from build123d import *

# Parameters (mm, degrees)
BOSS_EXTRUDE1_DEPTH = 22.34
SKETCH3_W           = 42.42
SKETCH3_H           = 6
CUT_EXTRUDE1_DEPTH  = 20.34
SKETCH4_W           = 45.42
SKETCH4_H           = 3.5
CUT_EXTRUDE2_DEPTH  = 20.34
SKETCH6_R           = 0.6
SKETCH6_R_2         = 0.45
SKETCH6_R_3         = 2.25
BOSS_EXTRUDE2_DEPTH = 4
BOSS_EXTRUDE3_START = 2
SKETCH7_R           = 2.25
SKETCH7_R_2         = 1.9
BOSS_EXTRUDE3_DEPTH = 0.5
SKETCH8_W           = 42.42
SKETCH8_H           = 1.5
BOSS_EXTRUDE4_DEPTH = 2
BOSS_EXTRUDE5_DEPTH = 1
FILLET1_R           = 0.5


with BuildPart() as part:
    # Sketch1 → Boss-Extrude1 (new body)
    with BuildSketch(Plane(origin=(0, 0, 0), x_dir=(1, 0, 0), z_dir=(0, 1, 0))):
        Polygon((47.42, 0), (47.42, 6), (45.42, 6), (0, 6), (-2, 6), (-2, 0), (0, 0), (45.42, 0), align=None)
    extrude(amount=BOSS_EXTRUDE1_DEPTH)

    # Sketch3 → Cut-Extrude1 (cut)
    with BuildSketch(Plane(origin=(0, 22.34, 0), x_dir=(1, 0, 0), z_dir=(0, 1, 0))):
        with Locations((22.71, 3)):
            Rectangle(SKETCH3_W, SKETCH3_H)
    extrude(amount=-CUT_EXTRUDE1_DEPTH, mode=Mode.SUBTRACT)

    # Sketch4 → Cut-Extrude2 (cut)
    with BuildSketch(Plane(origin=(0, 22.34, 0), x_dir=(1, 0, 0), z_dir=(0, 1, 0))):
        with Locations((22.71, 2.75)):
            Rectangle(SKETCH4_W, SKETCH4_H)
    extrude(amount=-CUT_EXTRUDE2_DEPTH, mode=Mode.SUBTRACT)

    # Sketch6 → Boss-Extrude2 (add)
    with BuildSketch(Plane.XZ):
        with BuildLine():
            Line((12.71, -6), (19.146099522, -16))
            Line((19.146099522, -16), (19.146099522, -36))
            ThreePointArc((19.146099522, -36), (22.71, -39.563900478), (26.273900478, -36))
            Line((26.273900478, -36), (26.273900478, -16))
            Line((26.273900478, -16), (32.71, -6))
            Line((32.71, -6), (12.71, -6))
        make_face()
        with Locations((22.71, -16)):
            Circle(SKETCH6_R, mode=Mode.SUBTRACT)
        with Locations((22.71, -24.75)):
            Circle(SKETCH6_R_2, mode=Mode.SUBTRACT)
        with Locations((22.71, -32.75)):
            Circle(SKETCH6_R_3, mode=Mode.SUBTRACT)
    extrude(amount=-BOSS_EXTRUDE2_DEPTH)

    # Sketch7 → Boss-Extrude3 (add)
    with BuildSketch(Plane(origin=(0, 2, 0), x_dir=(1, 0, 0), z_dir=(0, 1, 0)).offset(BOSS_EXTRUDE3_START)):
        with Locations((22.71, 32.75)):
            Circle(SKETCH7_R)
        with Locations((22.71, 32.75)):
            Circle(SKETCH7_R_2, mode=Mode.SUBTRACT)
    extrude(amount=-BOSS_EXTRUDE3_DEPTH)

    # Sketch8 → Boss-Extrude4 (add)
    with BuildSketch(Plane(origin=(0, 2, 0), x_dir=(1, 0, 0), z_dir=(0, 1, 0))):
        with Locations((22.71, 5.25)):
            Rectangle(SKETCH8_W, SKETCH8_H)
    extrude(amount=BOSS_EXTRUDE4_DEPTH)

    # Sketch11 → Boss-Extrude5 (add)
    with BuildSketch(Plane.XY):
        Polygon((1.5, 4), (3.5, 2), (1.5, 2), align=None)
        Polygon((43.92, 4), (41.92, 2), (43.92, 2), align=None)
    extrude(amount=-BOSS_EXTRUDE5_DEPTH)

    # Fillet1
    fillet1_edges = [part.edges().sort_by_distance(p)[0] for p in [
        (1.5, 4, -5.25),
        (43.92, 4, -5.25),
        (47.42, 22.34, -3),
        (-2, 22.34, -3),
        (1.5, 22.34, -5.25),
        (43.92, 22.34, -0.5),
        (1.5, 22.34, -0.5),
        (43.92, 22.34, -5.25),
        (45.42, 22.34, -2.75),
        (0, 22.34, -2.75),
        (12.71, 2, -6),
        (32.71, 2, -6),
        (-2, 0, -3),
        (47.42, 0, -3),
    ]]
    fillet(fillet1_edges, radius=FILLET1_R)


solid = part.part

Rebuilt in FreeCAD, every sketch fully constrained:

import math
import FreeCAD as App
import Part
import Sketcher
Q = App.Units.Quantity


def edges_at(feature, points):
    """Names of the edges that pass closest to the given points."""
    edges = feature.Shape.Edges
    near = lambda p: min(range(len(edges)), key=lambda i: edges[i].distToShape(Part.Vertex(*p))[0])
    return sorted({f"Edge{near(p) + 1}" for p in points})


def add_polygon(sketch, points):
    """Adds a closed chain of lines whose ends are joined by coincident constraints."""
    first, n = sketch.GeometryCount, len(points)
    for a, b in zip(points, points[1:] + points[:1]):
        sketch.addGeometry(Part.LineSegment(App.Vector(*a, 0), App.Vector(*b, 0)), False)
    for i in range(n):
        sketch.addConstraint(Sketcher.Constraint("Coincident", first + i, 2, first + (i + 1) % n, 1))

doc = App.newDocument("Part")
params = doc.addObject("Spreadsheet::Sheet", "Params")
for row, (alias, value) in enumerate([
    ("sketch1_height", "6 mm"),
    ("sketch1_width", "49.42 mm"),
    ("pad1_length", "22.34 mm"),
    ("sketch2_height", "6 mm"),
    ("sketch2_width", "42.42 mm"),
    ("pocket1_length", "20.34 mm"),
    ("sketch3_height", "3.5 mm"),
    ("sketch3_width", "45.42 mm"),
    ("pocket2_length", "20.34 mm"),
    ("sketch4_diameter", "4.5 mm"),
    ("sketch4_diameter2", "0.9 mm"),
    ("sketch4_diameter3", "1.2 mm"),
    ("sketch4_width", "20 mm"),
    ("pad2_length", "4 mm"),
    ("sketch5_diameter", "4.5 mm"),
    ("sketch5_diameter2", "3.8 mm"),
    ("pad3_length", "0.5 mm"),
    ("sketch6_height", "1.5 mm"),
    ("sketch6_width", "42.42 mm"),
    ("pad4_length", "2 mm"),
    ("sketch7_width", "2 mm"),
    ("pad5_length", "1 mm"),
    ("fillet_radius", "0.5 mm"),
], start=1):
    params.set(f"A{row}", alias)
    params.set(f"B{row}", "=" + value)
    params.setAlias(f"B{row}", alias)

body = doc.addObject("PartDesign::Body", "Body")

sketch1 = body.newObject("Sketcher::SketchObject", "Sketch")
sketch1.AttachmentSupport = (doc.getObject("XZ_Plane"), [""])
sketch1.MapMode = "FlatFace"
add_polygon(sketch1, [(47, 0), (47, -6), (-2, -6), (-2, 0)])
sketch1.addConstraint(Sketcher.Constraint("Vertical", 0))
sketch1.addConstraint(Sketcher.Constraint("Horizontal", 1))
sketch1.addConstraint(Sketcher.Constraint("Vertical", 2))
sketch1.addConstraint(Sketcher.Constraint("Horizontal", 3))
sketch1.addConstraint(Sketcher.Constraint("PointOnObject", 2, 2, -1))
sketch1.addConstraint(Sketcher.Constraint("DistanceY", 0, 2, 0, 1, Q("6 mm")))
sketch1.addConstraint(Sketcher.Constraint("DistanceX", 1, 2, -1, 1, Q("2 mm")))
sketch1.addConstraint(Sketcher.Constraint("DistanceX", 1, 2, 1, 1, Q("49.42 mm")))
sketch1.setExpression("Constraints[9]", "Params.sketch1_height")
sketch1.setExpression("Constraints[11]", "Params.sketch1_width")
pad1 = body.newObject("PartDesign::Pad", "Pad")
pad1.Profile = sketch1
pad1.setExpression("Length", "Params.pad1_length")
pad1.Reversed = True

sketch2 = body.newObject("Sketcher::SketchObject", "Sketch001")
sketch2.AttachmentSupport = (doc.getObject("XZ_Plane"), [""])
sketch2.MapMode = "FlatFace"
sketch2.AttachmentOffset = App.Placement(App.Vector(0, 0, -22.34), App.Rotation())
add_polygon(sketch2, [(2, -6), (2, 0), (44, 0), (44, -6)])
sketch2.addConstraint(Sketcher.Constraint("Vertical", 0))
sketch2.addConstraint(Sketcher.Constraint("Horizontal", 1))
sketch2.addConstraint(Sketcher.Constraint("Vertical", 2))
sketch2.addConstraint(Sketcher.Constraint("Horizontal", 3))
sketch2.addConstraint(Sketcher.Constraint("PointOnObject", 0, 2, -1))
sketch2.addConstraint(Sketcher.Constraint("DistanceY", 0, 1, 0, 2, Q("6 mm")))
sketch2.addConstraint(Sketcher.Constraint("DistanceX", 1, 1, 1, 2, Q("42.42 mm")))
sketch2.addConstraint(Sketcher.Constraint("DistanceX", -1, 1, 0, 2, Q("1.5 mm")))
sketch2.setExpression("Constraints[9]", "Params.sketch2_height")
sketch2.setExpression("Constraints[10]", "Params.sketch2_width")
pocket1 = body.newObject("PartDesign::Pocket", "Pocket")
pocket1.Profile = sketch2
pocket1.setExpression("Length", "Params.pocket1_length")
pocket1.Reversed = True

sketch3 = body.newObject("Sketcher::SketchObject", "Sketch002")
sketch3.AttachmentSupport = (doc.getObject("XZ_Plane"), [""])
sketch3.MapMode = "FlatFace"
sketch3.AttachmentOffset = App.Placement(App.Vector(0, 0, -22.34), App.Rotation())
add_polygon(sketch3, [(0, -4.5), (0, -1), (45.4, -1), (45.4, -4.5)])
sketch3.addConstraint(Sketcher.Constraint("Vertical", 0))
sketch3.addConstraint(Sketcher.Constraint("Horizontal", 1))
sketch3.addConstraint(Sketcher.Constraint("Vertical", 2))
sketch3.addConstraint(Sketcher.Constraint("Horizontal", 3))
sketch3.addConstraint(Sketcher.Constraint("PointOnObject", 0, 2, -2))
sketch3.addConstraint(Sketcher.Constraint("DistanceY", 0, 1, 0, 2, Q("3.5 mm")))
sketch3.addConstraint(Sketcher.Constraint("DistanceY", 0, 2, -1, 1, Q("1 mm")))
sketch3.addConstraint(Sketcher.Constraint("DistanceX", 1, 1, 1, 2, Q("45.42 mm")))
sketch3.setExpression("Constraints[9]", "Params.sketch3_height")
sketch3.setExpression("Constraints[11]", "Params.sketch3_width")
pocket2 = body.newObject("PartDesign::Pocket", "Pocket001")
pocket2.Profile = sketch3
pocket2.setExpression("Length", "Params.pocket2_length")
pocket2.Reversed = True

sketch4 = body.newObject("Sketcher::SketchObject", "Sketch003")
sketch4.AttachmentSupport = (doc.getObject("XZ_Plane"), [""])
sketch4.MapMode = "FlatFace"
sketch4.addGeometry(Part.LineSegment(App.Vector(12.71, -6, 0), App.Vector(19.15, -16, 0)), False)
sketch4.addGeometry(Part.LineSegment(App.Vector(19.15, -16, 0), App.Vector(19.15, -36, 0)), False)
sketch4.addGeometry(Part.ArcOfCircle(Part.Circle(App.Vector(22.71, -36, 0), App.Vector(0, 0, 1), 3.56), math.radians(180), math.radians(360)), False)
sketch4.addGeometry(Part.LineSegment(App.Vector(26.27, -36, 0), App.Vector(26.27, -16, 0)), False)
sketch4.addGeometry(Part.LineSegment(App.Vector(26.27, -16, 0), App.Vector(32.71, -6, 0)), False)
sketch4.addGeometry(Part.LineSegment(App.Vector(32.71, -6, 0), App.Vector(12.71, -6, 0)), False)
sketch4.addGeometry(Part.Circle(App.Vector(22.71, -32.75, 0), App.Vector(0, 0, 1), 2.25), False)
sketch4.addGeometry(Part.Circle(App.Vector(22.71, -24.75, 0), App.Vector(0, 0, 1), 0.45), False)
sketch4.addGeometry(Part.Circle(App.Vector(22.71, -16, 0), App.Vector(0, 0, 1), 0.6), False)
sketch4.addConstraint(Sketcher.Constraint("Coincident", 0, 2, 1, 1))
sketch4.addConstraint(Sketcher.Constraint("Tangent", 1, 2, 2, 1))
sketch4.addConstraint(Sketcher.Constraint("Tangent", 2, 2, 3, 1))
sketch4.addConstraint(Sketcher.Constraint("Coincident", 3, 2, 4, 1))
sketch4.addConstraint(Sketcher.Constraint("Coincident", 4, 2, 5, 1))
sketch4.addConstraint(Sketcher.Constraint("Coincident", 5, 2, 0, 1))
sketch4.addConstraint(Sketcher.Constraint("Vertical", 1))
sketch4.addConstraint(Sketcher.Constraint("Vertical", 3))
sketch4.addConstraint(Sketcher.Constraint("Horizontal", 5))
sketch4.addConstraint(Sketcher.Constraint("Horizontal", 8, 3, 0, 2))
sketch4.addConstraint(Sketcher.Constraint("Horizontal", 0, 2, 3, 2))
sketch4.addConstraint(Sketcher.Constraint("Vertical", 2, 3, 6, 3))
sketch4.addConstraint(Sketcher.Constraint("Vertical", 6, 3, 7, 3))
sketch4.addConstraint(Sketcher.Constraint("Vertical", 7, 3, 8, 3))
sketch4.addConstraint(Sketcher.Constraint("Equal", 5, 1))
sketch4.addConstraint(Sketcher.Constraint("Equal", 0, 4))
sketch4.addConstraint(Sketcher.Constraint("Diameter", 6, Q("4.5 mm")))
sketch4.addConstraint(Sketcher.Constraint("Diameter", 7, Q("0.9 mm")))
sketch4.addConstraint(Sketcher.Constraint("Diameter", 8, Q("1.2 mm")))
sketch4.addConstraint(Sketcher.Constraint("DistanceX", 5, 2, 5, 1, Q("20 mm")))
sketch4.addConstraint(Sketcher.Constraint("DistanceY", 2, 3, -1, 1, Q("36 mm")))
sketch4.addConstraint(Sketcher.Constraint("DistanceY", 4, 2, -1, 1, Q("6 mm")))
sketch4.addConstraint(Sketcher.Constraint("DistanceY", 6, 3, 7, 3, Q("8 mm")))
sketch4.addConstraint(Sketcher.Constraint("Radius", 2, Q("3.5639 mm")))
sketch4.addConstraint(Sketcher.Constraint("DistanceX", -1, 1, 2, 3, Q("22.71 mm")))
sketch4.addConstraint(Sketcher.Constraint("DistanceY", 6, 3, -1, 1, Q("32.75 mm")))
sketch4.setExpression("Constraints[16]", "Params.sketch4_diameter")
sketch4.setExpression("Constraints[17]", "Params.sketch4_diameter2")
sketch4.setExpression("Constraints[18]", "Params.sketch4_diameter3")
sketch4.setExpression("Constraints[19]", "Params.sketch4_width")
pad2 = body.newObject("PartDesign::Pad", "Pad001")
pad2.Profile = sketch4
pad2.setExpression("Length", "Params.pad2_length")
pad2.Reversed = True

sketch5 = body.newObject("Sketcher::SketchObject", "Sketch004")
sketch5.AttachmentSupport = (doc.getObject("XZ_Plane"), [""])
sketch5.MapMode = "FlatFace"
sketch5.AttachmentOffset = App.Placement(App.Vector(0, 0, -4), App.Rotation())
sketch5.addGeometry(Part.Circle(App.Vector(22.7, -32.8, 0), App.Vector(0, 0, 1), 2.2), False)
sketch5.addGeometry(Part.Circle(App.Vector(22.7, -32.8, 0), App.Vector(0, 0, 1), 1.9), False)
sketch5.addConstraint(Sketcher.Constraint("Coincident", 1, 3, 0, 3))
sketch5.addConstraint(Sketcher.Constraint("Diameter", 0, Q("4.5 mm")))
sketch5.addConstraint(Sketcher.Constraint("Diameter", 1, Q("3.8 mm")))
sketch5.addConstraint(Sketcher.Constraint("DistanceX", -1, 1, 0, 3, Q("22.71 mm")))
sketch5.addConstraint(Sketcher.Constraint("DistanceY", 0, 3, -1, 1, Q("32.75 mm")))
sketch5.setExpression("Constraints[1]", "Params.sketch5_diameter")
sketch5.setExpression("Constraints[2]", "Params.sketch5_diameter2")
pad3 = body.newObject("PartDesign::Pad", "Pad002")
pad3.Profile = sketch5
pad3.setExpression("Length", "Params.pad3_length")

sketch6 = body.newObject("Sketcher::SketchObject", "Sketch005")
sketch6.AttachmentSupport = (doc.getObject("XZ_Plane"), [""])
sketch6.MapMode = "FlatFace"
sketch6.AttachmentOffset = App.Placement(App.Vector(0, 0, -2), App.Rotation())
add_polygon(sketch6, [(1.5, -6), (1.5, -4.5), (43.9, -4.5), (43.9, -6)])
sketch6.addConstraint(Sketcher.Constraint("Vertical", 0))
sketch6.addConstraint(Sketcher.Constraint("Horizontal", 1))
sketch6.addConstraint(Sketcher.Constraint("Vertical", 2))
sketch6.addConstraint(Sketcher.Constraint("Horizontal", 3))
sketch6.addConstraint(Sketcher.Constraint("DistanceY", 0, 1, 0, 2, Q("1.5 mm")))
sketch6.addConstraint(Sketcher.Constraint("DistanceY", 2, 2, -1, 1, Q("6 mm")))
sketch6.addConstraint(Sketcher.Constraint("DistanceX", 1, 1, 1, 2, Q("42.42 mm")))
sketch6.addConstraint(Sketcher.Constraint("DistanceX", -1, 1, 0, 2, Q("1.5 mm")))
sketch6.setExpression("Constraints[8]", "Params.sketch6_height")
sketch6.setExpression("Constraints[10]", "Params.sketch6_width")
pad4 = body.newObject("PartDesign::Pad", "Pad003")
pad4.Profile = sketch6
pad4.setExpression("Length", "Params.pad4_length")
pad4.Reversed = True

sketch7 = body.newObject("Sketcher::SketchObject", "Sketch006")
sketch7.AttachmentSupport = (doc.getObject("XY_Plane"), [""])
sketch7.MapMode = "FlatFace"
add_polygon(sketch7, [(3.5, 2), (1.5, 4), (1.5, 2)])
add_polygon(sketch7, [(43.9, 4), (41.9, 2), (43.9, 2)])
sketch7.addConstraint(Sketcher.Constraint("Vertical", 1))
sketch7.addConstraint(Sketcher.Constraint("Horizontal", 2))
sketch7.addConstraint(Sketcher.Constraint("Horizontal", 4))
sketch7.addConstraint(Sketcher.Constraint("Vertical", 5))
sketch7.addConstraint(Sketcher.Constraint("Perpendicular", 0, 3))
sketch7.addConstraint(Sketcher.Constraint("Horizontal", 2, 2, 3, 2))
sketch7.addConstraint(Sketcher.Constraint("Horizontal", 0, 2, 5, 2))
sketch7.addConstraint(Sketcher.Constraint("Equal", 2, 4))
sketch7.addConstraint(Sketcher.Constraint("DistanceX", 2, 1, 2, 2, Q("2 mm")))
sketch7.addConstraint(Sketcher.Constraint("DistanceY", -1, 1, 0, 2, Q("4 mm")))
sketch7.addConstraint(Sketcher.Constraint("DistanceX", -1, 1, 0, 2, Q("1.5 mm")))
sketch7.addConstraint(Sketcher.Constraint("DistanceX", -1, 1, 3, 2, Q("41.92 mm")))
sketch7.setExpression("Constraints[14]", "Params.sketch7_width")
pad5 = body.newObject("PartDesign::Pad", "Pad004")
pad5.Profile = sketch7
pad5.setExpression("Length", "Params.pad5_length")
pad5.Reversed = True
doc.recompute()

fillet = body.newObject("PartDesign::Fillet", "Fillet")
fillet.Base = (pad5, edges_at(pad5, [
    (1.5, 4, -5.25),
    (43.92, 4, -5.25),
    (47.42, 22.34, -3),
    (-2, 22.34, -3),
    (1.5, 22.34, -5.25),
    (43.92, 22.34, -0.5),
    (1.5, 22.34, -0.5),
    (43.92, 22.34, -5.25),
    (45.42, 22.34, -2.75),
    (0, 22.34, -2.75),
    (12.71, 2, -6),
    (32.71, 2, -6),
    (-2, 0, -3),
    (47.42, 0, -3),
]))
fillet.setExpression("Radius", "Params.fillet_radius")

doc.recompute()
